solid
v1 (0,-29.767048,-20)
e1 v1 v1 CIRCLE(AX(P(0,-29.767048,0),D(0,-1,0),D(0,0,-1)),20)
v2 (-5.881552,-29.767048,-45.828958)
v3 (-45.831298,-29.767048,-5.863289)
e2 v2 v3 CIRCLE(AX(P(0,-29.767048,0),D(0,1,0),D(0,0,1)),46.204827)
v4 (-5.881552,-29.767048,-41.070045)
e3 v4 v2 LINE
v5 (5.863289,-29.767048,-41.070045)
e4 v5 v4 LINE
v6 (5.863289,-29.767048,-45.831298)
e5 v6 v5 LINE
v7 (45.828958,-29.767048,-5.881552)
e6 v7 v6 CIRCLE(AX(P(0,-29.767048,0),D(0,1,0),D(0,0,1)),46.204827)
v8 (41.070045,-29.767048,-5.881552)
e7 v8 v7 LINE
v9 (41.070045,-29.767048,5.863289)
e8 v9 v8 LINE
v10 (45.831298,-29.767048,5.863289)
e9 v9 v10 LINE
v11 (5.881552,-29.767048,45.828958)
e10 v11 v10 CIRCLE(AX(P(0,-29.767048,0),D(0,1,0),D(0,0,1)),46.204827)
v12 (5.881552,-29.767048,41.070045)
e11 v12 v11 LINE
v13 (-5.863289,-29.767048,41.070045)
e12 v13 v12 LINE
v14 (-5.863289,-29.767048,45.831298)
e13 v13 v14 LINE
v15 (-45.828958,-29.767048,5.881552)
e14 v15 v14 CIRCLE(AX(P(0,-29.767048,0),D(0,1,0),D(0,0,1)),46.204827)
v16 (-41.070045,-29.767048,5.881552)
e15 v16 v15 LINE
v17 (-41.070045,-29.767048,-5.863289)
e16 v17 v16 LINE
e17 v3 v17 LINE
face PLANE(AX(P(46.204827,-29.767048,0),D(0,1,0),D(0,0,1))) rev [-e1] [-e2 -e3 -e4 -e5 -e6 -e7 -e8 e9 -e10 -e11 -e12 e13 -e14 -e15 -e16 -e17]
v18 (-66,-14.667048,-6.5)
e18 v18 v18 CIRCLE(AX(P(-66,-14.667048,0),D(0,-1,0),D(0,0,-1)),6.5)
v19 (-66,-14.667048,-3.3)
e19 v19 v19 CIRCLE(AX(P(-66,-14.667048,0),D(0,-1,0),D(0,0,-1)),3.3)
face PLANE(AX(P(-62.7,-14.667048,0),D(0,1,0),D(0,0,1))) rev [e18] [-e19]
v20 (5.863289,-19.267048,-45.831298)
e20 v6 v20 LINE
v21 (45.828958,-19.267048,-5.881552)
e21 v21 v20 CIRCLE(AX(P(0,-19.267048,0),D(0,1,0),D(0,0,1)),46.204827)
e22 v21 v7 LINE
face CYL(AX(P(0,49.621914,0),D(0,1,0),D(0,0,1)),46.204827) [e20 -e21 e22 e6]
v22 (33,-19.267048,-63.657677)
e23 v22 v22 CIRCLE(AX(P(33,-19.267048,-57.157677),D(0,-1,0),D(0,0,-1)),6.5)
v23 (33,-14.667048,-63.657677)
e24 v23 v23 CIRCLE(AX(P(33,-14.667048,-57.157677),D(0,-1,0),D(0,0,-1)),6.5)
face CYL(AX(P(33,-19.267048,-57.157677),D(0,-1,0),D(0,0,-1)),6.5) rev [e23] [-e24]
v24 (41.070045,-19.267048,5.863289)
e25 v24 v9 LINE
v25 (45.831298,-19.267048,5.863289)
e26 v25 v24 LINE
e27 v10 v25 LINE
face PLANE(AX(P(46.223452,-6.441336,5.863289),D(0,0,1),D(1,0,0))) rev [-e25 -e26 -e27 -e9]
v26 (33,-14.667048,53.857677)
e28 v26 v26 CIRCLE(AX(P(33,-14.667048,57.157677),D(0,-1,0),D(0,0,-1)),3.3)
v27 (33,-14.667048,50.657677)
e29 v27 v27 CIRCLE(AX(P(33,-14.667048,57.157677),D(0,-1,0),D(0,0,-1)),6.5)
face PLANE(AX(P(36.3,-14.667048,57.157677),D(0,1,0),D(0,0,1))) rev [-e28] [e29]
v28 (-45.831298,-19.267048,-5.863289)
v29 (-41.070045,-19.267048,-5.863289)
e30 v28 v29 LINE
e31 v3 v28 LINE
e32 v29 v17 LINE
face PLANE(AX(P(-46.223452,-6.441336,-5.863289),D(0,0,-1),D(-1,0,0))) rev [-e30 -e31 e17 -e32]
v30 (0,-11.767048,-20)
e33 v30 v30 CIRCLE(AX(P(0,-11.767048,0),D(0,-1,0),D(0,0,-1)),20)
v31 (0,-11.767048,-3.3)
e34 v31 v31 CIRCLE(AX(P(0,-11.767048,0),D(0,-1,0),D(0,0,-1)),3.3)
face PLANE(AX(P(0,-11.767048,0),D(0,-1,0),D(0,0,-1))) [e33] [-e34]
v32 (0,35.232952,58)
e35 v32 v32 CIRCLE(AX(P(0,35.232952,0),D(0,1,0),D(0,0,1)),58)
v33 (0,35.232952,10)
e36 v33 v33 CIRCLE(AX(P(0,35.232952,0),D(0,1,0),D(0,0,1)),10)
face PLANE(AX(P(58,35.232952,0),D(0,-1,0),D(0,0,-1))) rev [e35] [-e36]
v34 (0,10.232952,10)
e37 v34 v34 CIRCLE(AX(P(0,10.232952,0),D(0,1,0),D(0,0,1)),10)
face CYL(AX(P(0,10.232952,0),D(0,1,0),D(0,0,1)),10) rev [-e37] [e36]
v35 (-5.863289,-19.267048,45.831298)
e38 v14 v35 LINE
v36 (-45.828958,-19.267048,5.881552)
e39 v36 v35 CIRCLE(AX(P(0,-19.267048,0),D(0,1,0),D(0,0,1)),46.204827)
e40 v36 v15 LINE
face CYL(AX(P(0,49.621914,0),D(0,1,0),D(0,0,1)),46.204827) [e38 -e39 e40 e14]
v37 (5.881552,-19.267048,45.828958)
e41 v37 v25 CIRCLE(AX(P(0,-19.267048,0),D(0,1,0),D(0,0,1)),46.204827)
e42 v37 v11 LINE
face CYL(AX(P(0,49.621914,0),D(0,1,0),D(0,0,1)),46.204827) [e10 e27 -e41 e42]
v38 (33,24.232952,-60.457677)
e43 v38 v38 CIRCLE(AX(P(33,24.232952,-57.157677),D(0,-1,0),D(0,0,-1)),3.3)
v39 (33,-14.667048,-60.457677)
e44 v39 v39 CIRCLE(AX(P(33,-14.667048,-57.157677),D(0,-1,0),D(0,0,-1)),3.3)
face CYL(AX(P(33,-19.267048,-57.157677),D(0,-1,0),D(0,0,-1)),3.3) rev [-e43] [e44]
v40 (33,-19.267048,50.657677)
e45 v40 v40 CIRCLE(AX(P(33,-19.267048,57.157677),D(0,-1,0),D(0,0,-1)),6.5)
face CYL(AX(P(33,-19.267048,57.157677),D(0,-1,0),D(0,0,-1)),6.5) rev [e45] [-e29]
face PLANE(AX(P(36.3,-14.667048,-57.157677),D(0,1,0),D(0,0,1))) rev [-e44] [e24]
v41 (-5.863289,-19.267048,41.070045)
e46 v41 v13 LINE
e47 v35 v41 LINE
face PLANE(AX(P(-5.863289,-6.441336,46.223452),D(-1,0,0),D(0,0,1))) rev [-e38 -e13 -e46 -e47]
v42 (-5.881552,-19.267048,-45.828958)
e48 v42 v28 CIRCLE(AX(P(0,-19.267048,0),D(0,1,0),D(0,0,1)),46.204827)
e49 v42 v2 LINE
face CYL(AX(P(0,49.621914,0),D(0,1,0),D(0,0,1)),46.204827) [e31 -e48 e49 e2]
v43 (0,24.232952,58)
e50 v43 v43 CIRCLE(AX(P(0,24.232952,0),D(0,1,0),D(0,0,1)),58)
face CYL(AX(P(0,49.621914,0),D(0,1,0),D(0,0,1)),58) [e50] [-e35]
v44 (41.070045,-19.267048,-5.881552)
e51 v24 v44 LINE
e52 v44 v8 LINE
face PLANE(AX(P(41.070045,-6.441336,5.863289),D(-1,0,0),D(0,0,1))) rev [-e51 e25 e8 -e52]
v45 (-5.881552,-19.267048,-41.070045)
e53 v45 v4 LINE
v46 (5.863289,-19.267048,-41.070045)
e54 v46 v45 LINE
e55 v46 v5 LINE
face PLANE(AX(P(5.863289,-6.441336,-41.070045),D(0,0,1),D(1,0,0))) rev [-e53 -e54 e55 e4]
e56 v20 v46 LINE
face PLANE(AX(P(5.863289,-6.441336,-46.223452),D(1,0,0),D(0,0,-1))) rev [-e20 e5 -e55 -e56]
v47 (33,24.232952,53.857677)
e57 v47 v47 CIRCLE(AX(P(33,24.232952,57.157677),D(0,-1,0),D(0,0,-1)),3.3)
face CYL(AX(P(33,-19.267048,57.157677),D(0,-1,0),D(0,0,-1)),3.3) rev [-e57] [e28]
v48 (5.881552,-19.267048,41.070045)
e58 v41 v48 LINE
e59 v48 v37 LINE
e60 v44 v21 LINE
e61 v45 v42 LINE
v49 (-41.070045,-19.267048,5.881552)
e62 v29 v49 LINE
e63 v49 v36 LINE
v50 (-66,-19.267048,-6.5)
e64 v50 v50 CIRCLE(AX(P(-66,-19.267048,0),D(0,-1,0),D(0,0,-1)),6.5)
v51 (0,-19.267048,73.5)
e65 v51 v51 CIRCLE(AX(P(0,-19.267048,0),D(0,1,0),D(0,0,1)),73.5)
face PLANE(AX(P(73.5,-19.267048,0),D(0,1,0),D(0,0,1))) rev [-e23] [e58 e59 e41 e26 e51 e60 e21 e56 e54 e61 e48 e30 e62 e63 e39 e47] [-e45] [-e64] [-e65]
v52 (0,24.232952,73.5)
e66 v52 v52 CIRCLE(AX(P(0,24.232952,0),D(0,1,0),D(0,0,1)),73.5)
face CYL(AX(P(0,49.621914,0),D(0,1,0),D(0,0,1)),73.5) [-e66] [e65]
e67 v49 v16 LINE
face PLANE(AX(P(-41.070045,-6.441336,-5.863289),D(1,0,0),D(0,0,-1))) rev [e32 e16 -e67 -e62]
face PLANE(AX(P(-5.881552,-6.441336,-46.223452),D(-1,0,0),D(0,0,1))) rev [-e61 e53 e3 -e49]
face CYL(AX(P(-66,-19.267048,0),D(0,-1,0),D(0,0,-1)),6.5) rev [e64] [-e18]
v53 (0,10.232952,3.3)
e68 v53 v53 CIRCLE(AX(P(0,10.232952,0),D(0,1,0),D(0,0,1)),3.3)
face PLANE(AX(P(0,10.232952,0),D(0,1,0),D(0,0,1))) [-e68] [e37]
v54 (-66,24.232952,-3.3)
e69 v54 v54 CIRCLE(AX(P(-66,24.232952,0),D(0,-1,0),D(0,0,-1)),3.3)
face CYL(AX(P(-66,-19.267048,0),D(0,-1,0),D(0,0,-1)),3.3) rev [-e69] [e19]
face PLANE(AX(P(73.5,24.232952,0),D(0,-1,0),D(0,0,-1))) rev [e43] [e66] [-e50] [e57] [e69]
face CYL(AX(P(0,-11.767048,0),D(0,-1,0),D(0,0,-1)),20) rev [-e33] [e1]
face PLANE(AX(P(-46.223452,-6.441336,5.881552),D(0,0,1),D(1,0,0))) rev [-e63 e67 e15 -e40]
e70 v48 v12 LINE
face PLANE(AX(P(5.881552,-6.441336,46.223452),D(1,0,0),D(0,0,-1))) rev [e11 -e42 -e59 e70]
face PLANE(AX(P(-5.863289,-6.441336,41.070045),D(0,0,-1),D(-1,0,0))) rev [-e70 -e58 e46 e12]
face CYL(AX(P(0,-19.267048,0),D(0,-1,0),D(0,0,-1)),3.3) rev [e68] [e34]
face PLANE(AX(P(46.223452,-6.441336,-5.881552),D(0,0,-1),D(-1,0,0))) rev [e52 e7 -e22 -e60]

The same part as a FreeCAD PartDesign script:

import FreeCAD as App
import Part
import Sketcher

V = App.Vector

doc = App.newDocument("Part")
params = doc.addObject("Spreadsheet::Sheet", "Params")
for row, (alias, value) in enumerate([
    ("sketch1_width", "58 mm"),
    ("sketch1_height", "11 mm"),
    ("sketch1_height2", "65 mm"),
    ("sketch1_width2", "15.5 mm"),
    ("sketch1_height3", "43.5 mm"),
    ("revolution_angle", "360 deg"),
    ("sketch2_diameter", "20 mm"),
    ("pocket1_length", "25 mm"),
    ("sketch3_diameter", "40 mm"),
    ("pocket2_length", "18 mm"),
    ("sketch4_diameter", "6.6 mm"),
    ("hole_diameter", "6.6 mm"),
    ("hole_cbore_diameter", "13 mm"),
    ("hole_cbore_depth", "4.6 mm"),
    ("pocket3_length", "10.5 mm"),
], start=1):
    params.set(f"A{row}", alias)
    params.set(f"B{row}", "=" + value)
    params.setAlias(f"B{row}", alias)

body = doc.addObject("PartDesign::Body", "Body")

sketch1 = doc.addObject("Sketcher::SketchObject", "Sketch")
body.addObject(sketch1)
sketch1.AttachmentSupport = (doc.XY_Plane, [""])
sketch1.MapMode = "FlatFace"
sketch1.addGeometry(Part.LineSegment(V(74, -19, 0), V(74, 24, 0)), False)
sketch1.addGeometry(Part.LineSegment(V(74, 24, 0), V(58, 24, 0)), False)
sketch1.addGeometry(Part.LineSegment(V(58, 24, 0), V(58, 35, 0)), False)
sketch1.addGeometry(Part.LineSegment(V(58, 35, 0), V(0, 35, 0)), False)
sketch1.addGeometry(Part.LineSegment(V(0, 35, 0), V(0, -30, 0)), False)
sketch1.addGeometry(Part.LineSegment(V(0, -30, 0), V(46, -30, 0)), False)
sketch1.addGeometry(Part.LineSegment(V(46, -30, 0), V(46, -19, 0)), False)
sketch1.addGeometry(Part.LineSegment(V(46, -19, 0), V(74, -19, 0)), False)
sketch1.addConstraint(Sketcher.Constraint("Coincident", 0, 2, 1, 1))
sketch1.addConstraint(Sketcher.Constraint("Coincident", 1, 2, 2, 1))
sketch1.addConstraint(Sketcher.Constraint("Coincident", 2, 2, 3, 1))
sketch1.addConstraint(Sketcher.Constraint("Coincident", 3, 2, 4, 1))
sketch1.addConstraint(Sketcher.Constraint("Coincident", 4, 2, 5, 1))
sketch1.addConstraint(Sketcher.Constraint("Coincident", 5, 2, 6, 1))
sketch1.addConstraint(Sketcher.Constraint("Coincident", 6, 2, 7, 1))
sketch1.addConstraint(Sketcher.Constraint("Coincident", 7, 2, 0, 1))
sketch1.addConstraint(Sketcher.Constraint("Vertical", 0))
sketch1.addConstraint(Sketcher.Constraint("Horizontal", 1))
sketch1.addConstraint(Sketcher.Constraint("Vertical", 2))
sketch1.addConstraint(Sketcher.Constraint("Horizontal", 3))
sketch1.addConstraint(Sketcher.Constraint("Vertical", 4))
sketch1.addConstraint(Sketcher.Constraint("Horizontal", 5))
sketch1.addConstraint(Sketcher.Constraint("Vertical", 6))
sketch1.addConstraint(Sketcher.Constraint("Horizontal", 7))
sketch1.addConstraint(Sketcher.Constraint("PointOnObject", 3, 2, -2))
sketch1.addConstraint(Sketcher.Constraint("DistanceX", 3, 2, 3, 1, 58.0))
sketch1.addConstraint(Sketcher.Constraint("DistanceY", 2, 1, 2, 2, 11.0))
sketch1.addConstraint(Sketcher.Constraint("DistanceY", 4, 2, 4, 1, 65.0))
sketch1.addConstraint(Sketcher.Constraint("DistanceX", 1, 2, 1, 1, 15.5))
sketch1.addConstraint(Sketcher.Constraint("DistanceY", 0, 1, 0, 2, 43.5))
sketch1.addConstraint(Sketcher.Constraint("DistanceX", 5, 1, 5, 2, 46.204827))
sketch1.addConstraint(Sketcher.Constraint("DistanceY", -1, 1, 0, 2, 24.232952))
sketch1.setExpression("Constraints[17]", "Params.sketch1_width")
sketch1.setExpression("Constraints[18]", "Params.sketch1_height")
sketch1.setExpression("Constraints[19]", "Params.sketch1_height2")
sketch1.setExpression("Constraints[20]", "Params.sketch1_width2")
sketch1.setExpression("Constraints[21]", "Params.sketch1_height3")
revolution = doc.addObject("PartDesign::Revolution", "Revolution")
body.addObject(revolution)
revolution.Profile = sketch1
revolution.ReferenceAxis = (sketch1, ["V_Axis"])
revolution.setExpression("Angle", "Params.revolution_angle")

sketch2 = doc.addObject("Sketcher::SketchObject", "Sketch001")
body.addObject(sketch2)
sketch2.AttachmentSupport = (doc.XZ_Plane, [""])
sketch2.MapMode = "FlatFace"
sketch2.AttachmentOffset = App.Placement(V(0, 0, -35.232952), App.Rotation())
sketch2.addGeometry(Part.Circle(V(0, 0, 0), V(0, 0, 1), 10), False)
sketch2.addConstraint(Sketcher.Constraint("Coincident", 0, 3, -1, 1))
sketch2.addConstraint(Sketcher.Constraint("Diameter", 0, 20.0))
sketch2.setExpression("Constraints[1]", "Params.sketch2_diameter")
pocket1 = doc.addObject("PartDesign::Pocket", "Pocket")
body.addObject(pocket1)
pocket1.Profile = sketch2
pocket1.setExpression("Length", "Params.pocket1_length")
pocket1.Reversed = True

sketch3 = doc.addObject("Sketcher::SketchObject", "Sketch002")
body.addObject(sketch3)
sketch3.AttachmentSupport = (doc.XZ_Plane, [""])
sketch3.MapMode = "FlatFace"
sketch3.AttachmentOffset = App.Placement(V(0, 0, 29.767048), App.Rotation())
sketch3.addGeometry(Part.Circle(V(0, 0, 0), V(0, 0, 1), 20), False)
sketch3.addConstraint(Sketcher.Constraint("Coincident", 0, 3, -1, 1))
sketch3.addConstraint(Sketcher.Constraint("Diameter", 0, 40.0))
sketch3.setExpression("Constraints[1]", "Params.sketch3_diameter")
pocket2 = doc.addObject("PartDesign::Pocket", "Pocket001")
body.addObject(pocket2)
pocket2.Profile = sketch3
pocket2.setExpression("Length", "Params.pocket2_length")

sketch4 = doc.addObject("Sketcher::SketchObject", "Sketch003")
body.addObject(sketch4)
sketch4.AttachmentSupport = (doc.XZ_Plane, [""])
sketch4.MapMode = "FlatFace"
sketch4.AttachmentOffset = App.Placement(V(0, 0, 19.267048), App.Rotation())
sketch4.addGeometry(Part.Circle(V(-66, 0, 0), V(0, 0, 1), 3.3), False)
sketch4.addGeometry(Part.Circle(V(33, 57.2, 0), V(0, 0, 1), 3.3), False)
sketch4.addGeometry(Part.Circle(V(33, -57.2, 0), V(0, 0, 1), 3.3), False)
sketch4.addGeometry(Part.Circle(V(0, 0, 0), V(0, 0, 1), 3.3), False)
sketch4.addConstraint(Sketcher.Constraint("Coincident", 3, 3, -1, 1))
sketch4.addConstraint(Sketcher.Constraint("Equal", 0, 1))
sketch4.addConstraint(Sketcher.Constraint("Equal", 1, 2))
sketch4.addConstraint(Sketcher.Constraint("Equal", 2, 3))
sketch4.addConstraint(Sketcher.Constraint("Symmetric", 1, 3, 2, 3, -1))
sketch4.addConstraint(Sketcher.Constraint("PointOnObject", 0, 3, -1))
sketch4.addConstraint(Sketcher.Constraint("Diameter", 0, 6.6))
sketch4.addConstraint(Sketcher.Constraint("DistanceX", 0, 3, -1, 1, 66.0))
sketch4.addConstraint(Sketcher.Constraint("DistanceX", -1, 1, 1, 3, 33.0))
sketch4.addConstraint(Sketcher.Constraint("DistanceY", -1, 1, 1, 3, 57.157677))
sketch4.setExpression("Constraints[6]", "Params.sketch4_diameter")
doc.recompute()
hole = doc.addObject("PartDesign::Hole", "Hole")
body.addObject(hole)
hole.Profile = sketch4
hole.ThreadType = "None"
hole.setExpression("Diameter", "Params.hole_diameter")
hole.DepthType = "ThroughAll"
hole.HoleCutType = "Counterbore"
hole.setExpression("HoleCutDiameter", "Params.hole_cbore_diameter")
hole.setExpression("HoleCutDepth", "Params.hole_cbore_depth")

sketch5 = doc.addObject("Sketcher::SketchObject", "Sketch004")
body.addObject(sketch5)
sketch5.AttachmentSupport = (doc.XZ_Plane, [""])
sketch5.MapMode = "FlatFace"
sketch5.AttachmentOffset = App.Placement(V(0, 0, 29.767048), App.Rotation())
sketch5.addGeometry(Part.LineSegment(V(-6, -41, 0), V(-6, -46, 0)), False)
sketch5.addGeometry(Part.LineSegment(V(-6, -46, 0), V(6, -46, 0)), False)
sketch5.addGeometry(Part.LineSegment(V(6, -46, 0), V(6, -41, 0)), False)
sketch5.addGeometry(Part.LineSegment(V(6, -41, 0), V(-6, -41, 0)), False)
sketch5.addGeometry(Part.LineSegment(V(-46, 6, 0), V(-46, -6, 0)), False)
sketch5.addGeometry(Part.LineSegment(V(-46, -6, 0), V(-41, -6, 0)), False)
sketch5.addGeometry(Part.LineSegment(V(-41, -6, 0), V(-41, 6, 0)), False)
sketch5.addGeometry(Part.LineSegment(V(-41, 6, 0), V(-46, 6, 0)), False)
sketch5.addGeometry(Part.LineSegment(V(-6, 46, 0), V(-6, 41, 0)), False)
sketch5.addGeometry(Part.LineSegment(V(-6, 41, 0), V(6, 41, 0)), False)
sketch5.addGeometry(Part.LineSegment(V(6, 41, 0), V(6, 46, 0)), False)
sketch5.addGeometry(Part.LineSegment(V(6, 46, 0), V(-6, 46, 0)), False)
sketch5.addGeometry(Part.LineSegment(V(41, 6, 0), V(41, -6, 0)), False)
sketch5.addGeometry(Part.LineSegment(V(41, -6, 0), V(46, -6, 0)), False)
sketch5.addGeometry(Part.LineSegment(V(46, -6, 0), V(46, 6, 0)), False)
sketch5.addGeometry(Part.LineSegment(V(46, 6, 0), V(41, 6, 0)), False)
sketch5.addConstraint(Sketcher.Constraint("Coincident", 0, 2, 1, 1))
sketch5.addConstraint(Sketcher.Constraint("Coincident", 1, 2, 2, 1))
sketch5.addConstraint(Sketcher.Constraint("Coincident", 2, 2, 3, 1))
sketch5.addConstraint(Sketcher.Constraint("Coincident", 3, 2, 0, 1))
sketch5.addConstraint(Sketcher.Constraint("Coincident", 4, 2, 5, 1))
sketch5.addConstraint(Sketcher.Constraint("Coincident", 5, 2, 6, 1))
sketch5.addConstraint(Sketcher.Constraint("Coincident", 6, 2, 7, 1))
sketch5.addConstraint(Sketcher.Constraint("Coincident", 7, 2, 4, 1))
sketch5.addConstraint(Sketcher.Constraint("Coincident", 8, 2, 9, 1))
sketch5.addConstraint(Sketcher.Constraint("Coincident", 9, 2, 10, 1))
sketch5.addConstraint(Sketcher.Constraint("Coincident", 10, 2, 11, 1))
sketch5.addConstraint(Sketcher.Constraint("Coincident", 11, 2, 8, 1))
sketch5.addConstraint(Sketcher.Constraint("Coincident", 12, 2, 13, 1))
sketch5.addConstraint(Sketcher.Constraint("Coincident", 13, 2, 14, 1))
sketch5.addConstraint(Sketcher.Constraint("Coincident", 14, 2, 15, 1))
sketch5.addConstraint(Sketcher.Constraint("Coincident", 15, 2, 12, 1))
sketch5.addConstraint(Sketcher.Constraint("Vertical", 0))
sketch5.addConstraint(Sketcher.Constraint("Horizontal", 1))
sketch5.addConstraint(Sketcher.Constraint("Vertical", 2))
sketch5.addConstraint(Sketcher.Constraint("Horizontal", 3))
sketch5.addConstraint(Sketcher.Constraint("Vertical", 4))
sketch5.addConstraint(Sketcher.Constraint("Horizontal", 5))
sketch5.addConstraint(Sketcher.Constraint("Vertical", 6))
sketch5.addConstraint(Sketcher.Constraint("Horizontal", 7))
sketch5.addConstraint(Sketcher.Constraint("Vertical", 8))
sketch5.addConstraint(Sketcher.Constraint("Horizontal", 9))
sketch5.addConstraint(Sketcher.Constraint("Vertical", 10))
sketch5.addConstraint(Sketcher.Constraint("Horizontal", 11))
sketch5.addConstraint(Sketcher.Constraint("Vertical", 12))
sketch5.addConstraint(Sketcher.Constraint("Horizontal", 13))
sketch5.addConstraint(Sketcher.Constraint("Vertical", 14))
sketch5.addConstraint(Sketcher.Constraint("Horizontal", 15))
sketch5.addConstraint(Sketcher.Constraint("Symmetric", 2, 2, 8, 2, -1, 1))
sketch5.addConstraint(Sketcher.Constraint("Symmetric", 0, 2, 10, 2, -1, 1))
sketch5.addConstraint(Sketcher.Constraint("Symmetric", 6, 2, 12, 2, -1, 1))
sketch5.addConstraint(Sketcher.Constraint("Symmetric", 4, 2, 14, 2, -1, 1))
sketch5.addConstraint(Sketcher.Constraint("Equal", 15, 0))
sketch5.addConstraint(Sketcher.Constraint("Equal", 11, 4))
sketch5.addConstraint(Sketcher.Constraint("DistanceX", 1, 1, 1, 2, 11.744841))
sketch5.addConstraint(Sketcher.Constraint("DistanceX", 4, 2, 3, 2, 40.341899))
sketch5.addConstraint(Sketcher.Constraint("DistanceY", 6, 2, 10, 2, 40.341899))
sketch5.addConstraint(Sketcher.Constraint("DistanceX", 5, 1, 5, 2, 5.153406))
sketch5.addConstraint(Sketcher.Constraint("DistanceY", 0, 2, -1, 1, 46.223452))
sketch5.addConstraint(Sketcher.Constraint("DistanceX", -1, 1, 1, 2, 5.863289))
pocket3 = doc.addObject("PartDesign::Pocket", "Pocket002")
body.addObject(pocket3)
pocket3.Profile = sketch5
pocket3.setExpression("Length", "Params.pocket3_length")

doc.recompute()
